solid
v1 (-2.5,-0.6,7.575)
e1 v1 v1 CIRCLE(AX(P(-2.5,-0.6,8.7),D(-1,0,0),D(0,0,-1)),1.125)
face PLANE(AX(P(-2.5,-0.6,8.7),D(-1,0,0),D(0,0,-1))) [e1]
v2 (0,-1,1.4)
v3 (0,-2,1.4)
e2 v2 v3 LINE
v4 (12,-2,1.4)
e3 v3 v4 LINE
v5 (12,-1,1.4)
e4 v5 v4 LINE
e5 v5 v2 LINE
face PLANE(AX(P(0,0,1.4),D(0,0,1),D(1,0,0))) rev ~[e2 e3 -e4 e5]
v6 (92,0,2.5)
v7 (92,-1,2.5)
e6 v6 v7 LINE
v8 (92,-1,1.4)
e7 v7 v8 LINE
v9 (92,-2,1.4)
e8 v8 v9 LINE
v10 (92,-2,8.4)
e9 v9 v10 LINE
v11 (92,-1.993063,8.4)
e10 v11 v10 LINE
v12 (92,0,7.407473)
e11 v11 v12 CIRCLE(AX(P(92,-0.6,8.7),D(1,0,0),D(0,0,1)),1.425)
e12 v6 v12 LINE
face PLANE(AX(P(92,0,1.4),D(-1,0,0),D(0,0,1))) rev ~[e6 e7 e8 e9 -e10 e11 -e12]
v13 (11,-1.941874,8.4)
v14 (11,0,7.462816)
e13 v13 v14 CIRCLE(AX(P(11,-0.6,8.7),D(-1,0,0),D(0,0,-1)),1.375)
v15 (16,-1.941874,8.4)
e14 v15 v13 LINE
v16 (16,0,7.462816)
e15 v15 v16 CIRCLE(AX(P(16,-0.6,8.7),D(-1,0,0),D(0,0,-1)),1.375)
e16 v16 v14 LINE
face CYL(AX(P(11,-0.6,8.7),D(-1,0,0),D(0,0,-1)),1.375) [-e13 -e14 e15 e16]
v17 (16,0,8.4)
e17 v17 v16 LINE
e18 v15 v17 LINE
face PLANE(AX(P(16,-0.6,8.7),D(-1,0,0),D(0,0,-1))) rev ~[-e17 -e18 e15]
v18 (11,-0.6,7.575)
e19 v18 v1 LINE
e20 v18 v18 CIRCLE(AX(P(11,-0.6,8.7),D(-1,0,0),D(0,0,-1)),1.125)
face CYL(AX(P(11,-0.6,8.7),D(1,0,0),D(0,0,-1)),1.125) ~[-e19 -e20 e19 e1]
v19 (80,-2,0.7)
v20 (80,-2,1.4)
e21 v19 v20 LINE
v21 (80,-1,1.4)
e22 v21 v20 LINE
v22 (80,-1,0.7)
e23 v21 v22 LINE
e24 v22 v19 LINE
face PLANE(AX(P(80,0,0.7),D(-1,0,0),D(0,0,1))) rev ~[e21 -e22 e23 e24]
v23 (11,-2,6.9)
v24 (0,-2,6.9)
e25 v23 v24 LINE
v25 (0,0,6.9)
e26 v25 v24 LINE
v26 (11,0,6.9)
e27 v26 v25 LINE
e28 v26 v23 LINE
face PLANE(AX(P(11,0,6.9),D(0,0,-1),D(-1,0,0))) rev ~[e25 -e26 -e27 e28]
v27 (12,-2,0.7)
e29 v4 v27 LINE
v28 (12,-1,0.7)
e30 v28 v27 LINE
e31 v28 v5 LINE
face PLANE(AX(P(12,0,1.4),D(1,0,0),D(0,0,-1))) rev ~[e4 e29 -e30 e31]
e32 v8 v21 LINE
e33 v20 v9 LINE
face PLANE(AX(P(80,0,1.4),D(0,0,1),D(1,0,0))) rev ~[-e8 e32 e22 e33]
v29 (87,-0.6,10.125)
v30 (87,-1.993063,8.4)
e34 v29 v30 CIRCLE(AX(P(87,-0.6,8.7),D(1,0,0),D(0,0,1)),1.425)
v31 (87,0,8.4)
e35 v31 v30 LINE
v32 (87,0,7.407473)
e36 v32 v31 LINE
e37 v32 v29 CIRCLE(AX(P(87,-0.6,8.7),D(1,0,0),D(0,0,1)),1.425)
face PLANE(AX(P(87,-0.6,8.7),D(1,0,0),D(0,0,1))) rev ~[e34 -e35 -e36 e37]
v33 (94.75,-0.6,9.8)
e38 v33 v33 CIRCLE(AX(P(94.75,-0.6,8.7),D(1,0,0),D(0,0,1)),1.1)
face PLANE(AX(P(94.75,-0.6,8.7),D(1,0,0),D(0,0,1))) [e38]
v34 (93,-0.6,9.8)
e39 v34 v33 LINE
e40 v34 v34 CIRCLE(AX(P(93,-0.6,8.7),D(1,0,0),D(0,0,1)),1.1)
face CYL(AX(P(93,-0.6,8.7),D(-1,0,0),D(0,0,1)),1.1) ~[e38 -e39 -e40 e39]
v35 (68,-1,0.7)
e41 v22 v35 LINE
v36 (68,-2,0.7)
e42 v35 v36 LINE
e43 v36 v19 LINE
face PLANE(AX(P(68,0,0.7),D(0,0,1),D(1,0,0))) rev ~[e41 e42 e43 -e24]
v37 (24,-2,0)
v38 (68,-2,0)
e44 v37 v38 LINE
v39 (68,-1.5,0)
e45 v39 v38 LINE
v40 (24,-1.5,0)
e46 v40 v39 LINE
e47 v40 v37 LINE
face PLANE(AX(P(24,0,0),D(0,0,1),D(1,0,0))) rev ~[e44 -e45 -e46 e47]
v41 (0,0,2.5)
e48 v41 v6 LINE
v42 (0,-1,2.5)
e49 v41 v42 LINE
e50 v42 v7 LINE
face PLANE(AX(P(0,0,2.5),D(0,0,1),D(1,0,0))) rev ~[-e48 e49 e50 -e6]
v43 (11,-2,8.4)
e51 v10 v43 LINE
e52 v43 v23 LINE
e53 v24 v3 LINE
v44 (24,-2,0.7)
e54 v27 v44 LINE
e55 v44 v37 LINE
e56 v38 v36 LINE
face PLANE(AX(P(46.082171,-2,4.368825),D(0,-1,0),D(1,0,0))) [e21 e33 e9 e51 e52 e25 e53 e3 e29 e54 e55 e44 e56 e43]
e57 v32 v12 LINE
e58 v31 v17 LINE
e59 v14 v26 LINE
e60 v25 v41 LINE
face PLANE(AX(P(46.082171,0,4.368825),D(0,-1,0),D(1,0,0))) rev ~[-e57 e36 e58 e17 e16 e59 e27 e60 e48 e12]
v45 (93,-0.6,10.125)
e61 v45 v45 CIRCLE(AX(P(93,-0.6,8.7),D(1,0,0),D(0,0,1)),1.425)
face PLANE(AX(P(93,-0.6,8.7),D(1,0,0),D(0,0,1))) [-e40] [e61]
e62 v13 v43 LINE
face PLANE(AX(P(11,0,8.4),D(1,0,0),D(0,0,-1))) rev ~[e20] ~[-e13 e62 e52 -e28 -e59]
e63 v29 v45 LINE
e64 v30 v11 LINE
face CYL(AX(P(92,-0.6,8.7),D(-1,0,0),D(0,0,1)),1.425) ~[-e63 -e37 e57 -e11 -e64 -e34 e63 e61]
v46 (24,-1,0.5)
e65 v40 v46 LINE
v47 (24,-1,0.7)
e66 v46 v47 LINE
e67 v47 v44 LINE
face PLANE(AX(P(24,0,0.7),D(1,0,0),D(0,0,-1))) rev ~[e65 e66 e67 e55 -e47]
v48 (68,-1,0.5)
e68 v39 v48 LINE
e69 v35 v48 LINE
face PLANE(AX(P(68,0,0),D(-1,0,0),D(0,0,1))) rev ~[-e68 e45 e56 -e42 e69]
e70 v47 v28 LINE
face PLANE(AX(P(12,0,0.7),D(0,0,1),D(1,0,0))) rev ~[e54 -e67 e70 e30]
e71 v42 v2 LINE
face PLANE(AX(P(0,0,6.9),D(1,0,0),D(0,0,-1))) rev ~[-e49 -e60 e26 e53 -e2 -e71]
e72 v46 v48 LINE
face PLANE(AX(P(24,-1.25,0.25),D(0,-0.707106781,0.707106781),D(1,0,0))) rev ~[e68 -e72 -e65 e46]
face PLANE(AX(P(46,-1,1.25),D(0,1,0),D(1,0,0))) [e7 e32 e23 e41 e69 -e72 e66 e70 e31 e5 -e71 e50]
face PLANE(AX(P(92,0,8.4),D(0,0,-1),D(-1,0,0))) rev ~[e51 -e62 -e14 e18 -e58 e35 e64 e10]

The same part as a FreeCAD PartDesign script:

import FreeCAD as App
import Part
import Sketcher
Q = App.Units.Quantity


def edges_at(feature, points):
    """Names of the edges that pass closest to the given points."""
    edges = feature.Shape.Edges
    near = lambda p: min(range(len(edges)), key=lambda i: edges[i].distToShape(Part.Vertex(*p))[0])
    return sorted({f"Edge{near(p) + 1}" for p in points})


def add_polygon(sketch, points):
    """Adds a closed chain of lines whose ends are joined by coincident constraints."""
    first, n = sketch.GeometryCount, len(points)
    for a, b in zip(points, points[1:] + points[:1]):
        sketch.addGeometry(Part.LineSegment(App.Vector(*a, 0), App.Vector(*b, 0)), False)
    for i in range(n):
        sketch.addConstraint(Sketcher.Constraint("Coincident", first + i, 2, first + (i + 1) % n, 1))

doc = App.newDocument("Part")
body = doc.addObject("PartDesign::Body", "Body")

# Sketch on XZ plane
sketch1 = body.newObject("Sketcher::SketchObject", "Sketch")
sketch1.AttachmentSupport = (doc.getObject("XZ_Plane"), [""])
sketch1.MapMode = "FlatFace"
add_polygon(sketch1, [(0, 1.4), (12, 1.4), (12, 0.7), (24, 0.7), (24, 0), (68, 0), (68, 0.7), (80, 0.7), (80, 1.4), (92, 1.4), (92, 8.4), (11, 8.4), (11, 6.9), (0, 6.9)])  # lines 0-13
sketch1.addConstraint([
    Sketcher.Constraint("Horizontal", 0),
    Sketcher.Constraint("Vertical", 1),
    Sketcher.Constraint("Horizontal", 2),
    Sketcher.Constraint("Vertical", 3),
    Sketcher.Constraint("Horizontal", 4),
    Sketcher.Constraint("Vertical", 5),
    Sketcher.Constraint("Horizontal", 6),
    Sketcher.Constraint("Vertical", 7),
    Sketcher.Constraint("Horizontal", 8),
    Sketcher.Constraint("Vertical", 9),
    Sketcher.Constraint("Horizontal", 10),
    Sketcher.Constraint("Vertical", 11),
    Sketcher.Constraint("Horizontal", 12),
    Sketcher.Constraint("Vertical", 13),
    Sketcher.Constraint("PointOnObject", 3, 2, -1),
    Sketcher.Constraint("PointOnObject", 12, 2, -2),
    Sketcher.Constraint("Horizontal", 2, 2, 5, 2),
    Sketcher.Constraint("Horizontal", 0, 2, 7, 2),
    Sketcher.Constraint("Equal", 0, 2),
    Sketcher.Constraint("Equal", 2, 6),
    Sketcher.Constraint("Equal", 6, 8),
    Sketcher.Constraint("Equal", 1, 3),
    Sketcher.Constraint("DistanceX", 0, 1, 0, 2, Q("12 mm")),
    Sketcher.Constraint("DistanceX", 4, 1, 4, 2, Q("44 mm")),
    Sketcher.Constraint("DistanceX", 10, 2, 10, 1, Q("81 mm")),
    Sketcher.Constraint("DistanceY", 9, 1, 9, 2, Q("7 mm")),
    Sketcher.Constraint("DistanceY", 1, 2, 1, 1, Q("0.7 mm")),
    Sketcher.Constraint("DistanceY", 11, 2, 11, 1, Q("1.5 mm")),
])
pad1 = body.newObject("PartDesign::Pad", "Pad")
pad1.Profile = sketch1
pad1.Length = 2

# Sketch on YZ plane
sketch2 = body.newObject("Sketcher::SketchObject", "Sketch001")
sketch2.AttachmentSupport = (doc.getObject("YZ_Plane"), [""])
sketch2.MapMode = "FlatFace"
sketch2.AttachmentOffset = App.Placement(App.Vector(0, 0, 92), App.Rotation())
sketch2.addGeometry(Part.Circle(App.Vector(-0.6, 8.7, 0), App.Vector(0, 0, 1), 1.4), False)
sketch2.addConstraint([
    Sketcher.Constraint("Diameter", 0, Q("2.85 mm")),
    Sketcher.Constraint("DistanceX", 0, 3, -1, 1, Q("0.6 mm")),
    Sketcher.Constraint("DistanceY", -1, 1, 0, 3, Q("8.7 mm")),
])
pad2 = body.newObject("PartDesign::Pad", "Pad001")
pad2.Profile = sketch2
pad2.Length = 1

# Sketch on YZ plane
sketch3 = body.newObject("Sketcher::SketchObject", "Sketch002")
sketch3.AttachmentSupport = (doc.getObject("YZ_Plane"), [""])
sketch3.MapMode = "FlatFace"
sketch3.AttachmentOffset = App.Placement(App.Vector(0, 0, 92), App.Rotation())
sketch3.addGeometry(Part.Circle(App.Vector(-0.6, 8.7, 0), App.Vector(0, 0, 1), 1.4), False)
sketch3.addConstraint([
    Sketcher.Constraint("Diameter", 0, Q("2.85 mm")),
    Sketcher.Constraint("DistanceX", 0, 3, -1, 1, Q("0.6 mm")),
    Sketcher.Constraint("DistanceY", -1, 1, 0, 3, Q("8.7 mm")),
])
pad3 = body.newObject("PartDesign::Pad", "Pad002")
pad3.Profile = sketch3
pad3.Length = 5
pad3.Reversed = True

# Sketch on YZ plane
sketch4 = body.newObject("Sketcher::SketchObject", "Sketch003")
sketch4.AttachmentSupport = (doc.getObject("YZ_Plane"), [""])
sketch4.MapMode = "FlatFace"
sketch4.AttachmentOffset = App.Placement(App.Vector(0, 0, 93), App.Rotation())
sketch4.addGeometry(Part.Circle(App.Vector(-0.6, 8.7, 0), App.Vector(0, 0, 1), 1.1), False)
sketch4.addConstraint([
    Sketcher.Constraint("Diameter", 0, Q("2.2 mm")),
    Sketcher.Constraint("DistanceX", 0, 3, -1, 1, Q("0.6 mm")),
    Sketcher.Constraint("DistanceY", -1, 1, 0, 3, Q("8.7 mm")),
])
pad4 = body.newObject("PartDesign::Pad", "Pad003")
pad4.Profile = sketch4
pad4.Length = 1.75

# Sketch on YZ plane
sketch5 = body.newObject("Sketcher::SketchObject", "Sketch004")
sketch5.AttachmentSupport = (doc.getObject("YZ_Plane"), [""])
sketch5.MapMode = "FlatFace"
sketch5.AttachmentOffset = App.Placement(App.Vector(0, 0, 11), App.Rotation())
sketch5.addGeometry(Part.Circle(App.Vector(-0.6, 8.7, 0), App.Vector(0, 0, 1), 1.4), False)
sketch5.addConstraint([
    Sketcher.Constraint("Diameter", 0, Q("2.75 mm")),
    Sketcher.Constraint("DistanceX", 0, 3, -1, 1, Q("0.6 mm")),
    Sketcher.Constraint("DistanceY", -1, 1, 0, 3, Q("8.7 mm")),
])
pad5 = body.newObject("PartDesign::Pad", "Pad004")
pad5.Profile = sketch5
pad5.Length = 5

# Sketch on YZ plane
sketch6 = body.newObject("Sketcher::SketchObject", "Sketch005")
sketch6.AttachmentSupport = (doc.getObject("YZ_Plane"), [""])
sketch6.MapMode = "FlatFace"
sketch6.AttachmentOffset = App.Placement(App.Vector(0, 0, 11), App.Rotation())
sketch6.addGeometry(Part.Circle(App.Vector(-0.6, 8.7, 0), App.Vector(0, 0, 1), 1.1), False)
sketch6.addConstraint([
    Sketcher.Constraint("Diameter", 0, Q("2.25 mm")),
    Sketcher.Constraint("DistanceX", 0, 3, -1, 1, Q("0.6 mm")),
    Sketcher.Constraint("DistanceY", -1, 1, 0, 3, Q("8.7 mm")),
])
pad6 = body.newObject("PartDesign::Pad", "Pad005")
pad6.Profile = sketch6
pad6.Length = 13.5
pad6.Reversed = True

# Sketch on XZ plane
sketch7 = body.newObject("Sketcher::SketchObject", "Sketch006")
sketch7.AttachmentSupport = (doc.getObject("XZ_Plane"), [""])
sketch7.MapMode = "FlatFace"
add_polygon(sketch7, [(0, 0), (0, 2.5), (92, 2.5), (92, 0)])  # lines 0-3
sketch7.addConstraint([
    Sketcher.Constraint("Vertical", 0),
    Sketcher.Constraint("Horizontal", 1),
    Sketcher.Constraint("Vertical", 2),
    Sketcher.Constraint("Horizontal", 3),
    Sketcher.Constraint("Coincident", 3, 2, -1, 1),
    Sketcher.Constraint("DistanceX", 1, 1, 1, 2, Q("92 mm")),
    Sketcher.Constraint("DistanceY", 0, 1, 0, 2, Q("2.5 mm")),
])
pocket1 = body.newObject("PartDesign::Pocket", "Pocket")
pocket1.Profile = sketch7
pocket1.Length = 1
pocket1.Reversed = True
doc.recompute()

chamfer = body.newObject("PartDesign::Chamfer", "Chamfer")
chamfer.Base = (pocket1, edges_at(pocket1, [(46, -1, 0)]))
chamfer.Size = 0.5

doc.recompute()
